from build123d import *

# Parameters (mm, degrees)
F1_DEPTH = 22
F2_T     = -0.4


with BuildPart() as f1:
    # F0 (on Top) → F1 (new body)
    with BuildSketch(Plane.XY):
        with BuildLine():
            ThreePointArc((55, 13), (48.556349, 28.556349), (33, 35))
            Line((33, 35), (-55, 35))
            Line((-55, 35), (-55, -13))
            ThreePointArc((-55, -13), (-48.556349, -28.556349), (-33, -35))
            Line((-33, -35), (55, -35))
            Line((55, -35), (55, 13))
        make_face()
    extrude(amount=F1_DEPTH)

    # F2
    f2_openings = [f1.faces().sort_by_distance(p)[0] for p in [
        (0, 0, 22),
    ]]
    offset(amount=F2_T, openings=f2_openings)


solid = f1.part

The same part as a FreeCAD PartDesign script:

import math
import FreeCAD as App
import Part
import Sketcher

V = App.Vector


def faces_at(feature, points):
    """Names of the faces that lie closest to the given points."""
    faces = feature.Shape.Faces
    near = lambda p: min(range(len(faces)), key=lambda i: faces[i].distToShape(Part.Vertex(*p))[0])
    return sorted({f"Face{near(p) + 1}" for p in points})

doc = App.newDocument("Part")
body = doc.addObject("PartDesign::Body", "Body")

# Sketch on XY plane
sketch1 = body.newObject("Sketcher::SketchObject", "Sketch")
sketch1.AttachmentSupport = (doc.getObject("XY_Plane"), [""])
sketch1.MapMode = "FlatFace"
sketch1.addGeometry([
    Part.ArcOfCircle(Part.Circle(V(32.999999, 12.999999, 0), V(0, 0, 1), 22.000001), math.radians(0.000002), math.radians(89.999998)),  # 0
    Part.LineSegment(V(33, 35, 0), V(-55, 35, 0)),  # 1
    Part.LineSegment(V(-55, 35, 0), V(-55, -13, 0)),  # 2
    Part.ArcOfCircle(Part.Circle(V(-32.999999, -12.999999, 0), V(0, 0, 1), 22.000001), math.radians(-179.999998), math.radians(-90.000002)),  # 3
    Part.LineSegment(V(-33, -35, 0), V(55, -35, 0)),  # 4
    Part.LineSegment(V(55, -35, 0), V(55, 13, 0)),  # 5
], False)
sketch1.addConstraint([
    Sketcher.Constraint("Tangent", 0, 2, 1, 1),
    Sketcher.Constraint("Coincident", 1, 2, 2, 1),
    Sketcher.Constraint("Tangent", 2, 2, 3, 1),
    Sketcher.Constraint("Tangent", 3, 2, 4, 1),
    Sketcher.Constraint("Coincident", 4, 2, 5, 1),
    Sketcher.Constraint("Tangent", 5, 2, 0, 1),
    Sketcher.Constraint("Horizontal", 1),
    Sketcher.Constraint("Vertical", 2),
    Sketcher.Constraint("Horizontal", 4),
    Sketcher.Constraint("Vertical", 5),
    Sketcher.Constraint("Equal", 0, 3),
    Sketcher.Constraint("Symmetric", 0, 3, 3, 3, -1, 1),
    Sketcher.Constraint("Radius", 0, 22.000001),
    Sketcher.Constraint("DistanceX", 1, 2, 1, 1, 88.0),
    Sketcher.Constraint("DistanceY", 2, 2, 2, 1, 48.0),
])
pad1 = body.newObject("PartDesign::Pad", "Pad")
pad1.Profile = sketch1
pad1.Length = 22
doc.recompute()

thickness = body.newObject("PartDesign::Thickness", "Thickness")
thickness.Base = (pad1, faces_at(pad1, [(0, 0, 22)]))
thickness.Value = 0.4
thickness.Reversed = True
thickness.Join = "Arc"

doc.recompute()
